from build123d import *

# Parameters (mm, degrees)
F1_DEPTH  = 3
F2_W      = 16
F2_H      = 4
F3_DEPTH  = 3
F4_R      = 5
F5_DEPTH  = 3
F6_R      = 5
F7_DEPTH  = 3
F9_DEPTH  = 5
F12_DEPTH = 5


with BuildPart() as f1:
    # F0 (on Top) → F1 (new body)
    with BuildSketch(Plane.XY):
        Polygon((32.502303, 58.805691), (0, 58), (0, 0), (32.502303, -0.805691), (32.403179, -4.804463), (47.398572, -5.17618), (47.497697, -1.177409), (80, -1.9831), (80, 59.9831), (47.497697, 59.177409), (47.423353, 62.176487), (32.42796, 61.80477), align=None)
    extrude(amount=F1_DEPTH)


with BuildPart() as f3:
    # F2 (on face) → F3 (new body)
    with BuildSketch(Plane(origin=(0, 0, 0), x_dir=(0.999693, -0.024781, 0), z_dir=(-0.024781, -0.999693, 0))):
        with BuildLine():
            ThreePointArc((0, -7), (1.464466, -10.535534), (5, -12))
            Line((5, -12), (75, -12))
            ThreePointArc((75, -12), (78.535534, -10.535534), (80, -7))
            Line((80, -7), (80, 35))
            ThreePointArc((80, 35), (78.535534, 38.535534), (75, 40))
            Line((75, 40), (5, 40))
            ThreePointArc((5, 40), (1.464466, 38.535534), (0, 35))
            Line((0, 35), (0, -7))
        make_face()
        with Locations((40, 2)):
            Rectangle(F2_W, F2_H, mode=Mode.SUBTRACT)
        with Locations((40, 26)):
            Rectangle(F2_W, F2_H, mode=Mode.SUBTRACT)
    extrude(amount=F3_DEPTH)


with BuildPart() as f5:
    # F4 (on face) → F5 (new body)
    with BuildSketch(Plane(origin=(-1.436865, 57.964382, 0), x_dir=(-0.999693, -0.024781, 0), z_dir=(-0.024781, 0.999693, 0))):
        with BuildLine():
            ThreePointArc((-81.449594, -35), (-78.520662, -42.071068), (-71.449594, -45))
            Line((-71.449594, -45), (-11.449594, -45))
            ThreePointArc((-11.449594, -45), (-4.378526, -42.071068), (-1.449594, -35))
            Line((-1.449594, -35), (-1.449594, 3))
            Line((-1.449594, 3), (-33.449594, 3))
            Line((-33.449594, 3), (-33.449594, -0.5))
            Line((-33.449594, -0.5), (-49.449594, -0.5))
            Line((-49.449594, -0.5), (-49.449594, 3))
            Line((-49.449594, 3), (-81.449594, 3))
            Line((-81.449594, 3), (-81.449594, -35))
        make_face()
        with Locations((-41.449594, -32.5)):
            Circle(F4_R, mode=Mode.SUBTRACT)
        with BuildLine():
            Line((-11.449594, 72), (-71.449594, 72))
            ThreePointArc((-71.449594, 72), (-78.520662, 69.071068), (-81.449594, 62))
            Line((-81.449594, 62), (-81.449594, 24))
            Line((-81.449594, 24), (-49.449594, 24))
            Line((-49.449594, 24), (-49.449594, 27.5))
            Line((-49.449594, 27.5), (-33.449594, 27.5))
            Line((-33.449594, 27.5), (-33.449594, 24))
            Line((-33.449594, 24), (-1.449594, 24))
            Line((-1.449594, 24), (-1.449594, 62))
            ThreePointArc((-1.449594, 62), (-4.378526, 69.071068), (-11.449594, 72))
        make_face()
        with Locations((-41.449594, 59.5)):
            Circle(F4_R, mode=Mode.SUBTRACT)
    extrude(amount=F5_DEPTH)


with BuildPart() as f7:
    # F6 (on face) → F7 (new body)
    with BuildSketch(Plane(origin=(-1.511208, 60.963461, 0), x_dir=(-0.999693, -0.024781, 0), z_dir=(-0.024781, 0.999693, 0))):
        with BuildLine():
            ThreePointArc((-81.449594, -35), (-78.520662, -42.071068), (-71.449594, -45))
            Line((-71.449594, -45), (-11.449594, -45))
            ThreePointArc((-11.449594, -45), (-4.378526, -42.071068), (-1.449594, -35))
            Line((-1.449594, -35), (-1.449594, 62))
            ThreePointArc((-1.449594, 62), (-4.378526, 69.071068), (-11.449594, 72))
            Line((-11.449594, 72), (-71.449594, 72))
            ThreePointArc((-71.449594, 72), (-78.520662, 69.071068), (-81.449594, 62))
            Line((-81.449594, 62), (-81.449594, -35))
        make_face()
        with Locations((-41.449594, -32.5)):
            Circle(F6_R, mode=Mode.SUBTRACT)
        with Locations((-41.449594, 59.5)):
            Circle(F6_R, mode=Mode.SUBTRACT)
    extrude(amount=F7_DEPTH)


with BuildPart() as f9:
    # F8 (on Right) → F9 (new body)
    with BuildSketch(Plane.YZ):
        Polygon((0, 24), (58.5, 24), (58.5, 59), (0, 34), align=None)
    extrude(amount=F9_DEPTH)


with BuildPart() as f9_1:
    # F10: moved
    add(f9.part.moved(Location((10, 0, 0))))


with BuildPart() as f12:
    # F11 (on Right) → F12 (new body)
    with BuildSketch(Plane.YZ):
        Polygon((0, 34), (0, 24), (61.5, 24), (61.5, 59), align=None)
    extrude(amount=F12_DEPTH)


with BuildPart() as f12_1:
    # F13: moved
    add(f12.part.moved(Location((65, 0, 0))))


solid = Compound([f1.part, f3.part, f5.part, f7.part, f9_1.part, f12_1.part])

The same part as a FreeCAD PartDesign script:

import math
import FreeCAD as App
import Part
import Sketcher
Q = App.Units.Quantity


def add_polygon(sketch, points):
    """Adds a closed chain of lines whose ends are joined by coincident constraints."""
    first, n = sketch.GeometryCount, len(points)
    for a, b in zip(points, points[1:] + points[:1]):
        sketch.addGeometry(Part.LineSegment(App.Vector(*a, 0), App.Vector(*b, 0)), False)
    for i in range(n):
        sketch.addConstraint(Sketcher.Constraint("Coincident", first + i, 2, first + (i + 1) % n, 1))

doc = App.newDocument("Part")
params = doc.addObject("Spreadsheet::Sheet", "Params")
for row, (alias, value) in enumerate([
    ("sketch1_height", "58 mm"),
    ("sketch1_length", "4 mm"),
    ("sketch1_length2", "14.999999 mm"),
    ("sketch1_length3", "2.999999 mm"),
    ("pad1_length", "3 mm"),
    ("sketch2_radius", "5 mm"),
    ("sketch2_width", "70 mm"),
    ("sketch2_width2", "16 mm"),
    ("sketch2_height", "42 mm"),
    ("sketch2_height2", "4 mm"),
    ("pad2_length", "3 mm"),
    ("sketch3_diameter", "10 mm"),
    ("sketch3_radius", "9.999999 mm"),
    ("sketch3_width", "60 mm"),
    ("sketch3_width2", "32 mm"),
    ("sketch3_height", "38 mm"),
    ("pad3_length", "3 mm"),
    ("sketch4_diameter", "10 mm"),
    ("sketch4_radius", "9.999999 mm"),
    ("sketch4_width", "60 mm"),
    ("sketch4_height", "97 mm"),
    ("pad4_length", "3 mm"),
    ("sketch5_height", "35 mm"),
    ("sketch5_height2", "10 mm"),
    ("sketch5_width", "58.5 mm"),
    ("pad5_length", "5 mm"),
    ("sketch6_height", "10 mm"),
    ("sketch6_height2", "35 mm"),
    ("sketch6_width", "61.5 mm"),
    ("pad6_length", "5 mm"),
], start=1):
    params.set(f"A{row}", alias)
    params.set(f"B{row}", "=" + value)
    params.setAlias(f"B{row}", alias)

body = doc.addObject("PartDesign::Body", "Body")

# Sketch on XY plane
sketch1 = doc.addObject("Sketcher::SketchObject", "Sketch")
body.addObject(sketch1)
sketch1.AttachmentSupport = (doc.XY_Plane, [""])
sketch1.MapMode = "FlatFace"
add_polygon(sketch1, [(32.5, 58.8), (0, 58), (0, 0), (32.5, -0.8), (32.4, -4.8), (47.4, -5.2), (47.5, -1.2), (80, -2), (80, 60), (47.5, 59.2), (47.4, 62.2), (32.4, 61.8)])  # lines 0-11
sketch1.addConstraint([
    Sketcher.Constraint("Vertical", 1),
    Sketcher.Constraint("Vertical", 7),
    Sketcher.Constraint("Coincident", 1, 2, -1, 1),
    Sketcher.Constraint("Perpendicular", 2, 3),
    Sketcher.Constraint("Perpendicular", 3, 4),
    Sketcher.Constraint("Perpendicular", 4, 5),
    Sketcher.Constraint("Perpendicular", 5, 6),
    Sketcher.Constraint("Parallel", 0, 8),
    Sketcher.Constraint("Perpendicular", 8, 9),
    Sketcher.Constraint("Perpendicular", 9, 10),
    Sketcher.Constraint("Perpendicular", 10, 11),
    Sketcher.Constraint("Vertical", 5, 2, 8, 2),
    Sketcher.Constraint("Vertical", 2, 2, 11, 2),
    Sketcher.Constraint("Equal", 0, 2),
    Sketcher.Constraint("Equal", 3, 5),
    Sketcher.Constraint("Equal", 2, 6),
    Sketcher.Constraint("Equal", 4, 10),
    Sketcher.Constraint("DistanceY", 1, 2, 1, 1, 58.0),
    Sketcher.Constraint("Distance", 3, 4.0),
    Sketcher.Constraint("Distance", 4, 14.999999),
    Sketcher.Constraint("Distance", 9, 2.999999),
    Sketcher.Constraint("DistanceX", -1, 1, 6, 2, 80.0),
    Sketcher.Constraint("Angle", 0, Q("-178.580001 deg")),
])
sketch1.setExpression("Constraints[29]", "Params.sketch1_height")
sketch1.setExpression("Constraints[30]", "Params.sketch1_length")
sketch1.setExpression("Constraints[31]", "Params.sketch1_length2")
sketch1.setExpression("Constraints[32]", "Params.sketch1_length3")
pad1 = doc.addObject("PartDesign::Pad", "Pad")
body.addObject(pad1)
pad1.Profile = sketch1
pad1.setExpression("Length", "Params.pad1_length")
body2 = doc.addObject("PartDesign::Body", "Body001")

# Sketch on an angled plane
sketch2 = doc.addObject("Sketcher::SketchObject", "Sketch001")
body2.addObject(sketch2)
sketch2.Placement = App.Placement(App.Vector(0, 0, 0), App.Rotation(App.Vector(0.999692904, -0.024780998, 0), App.Vector(0, 0, 1), App.Vector(-0.024780998, -0.999692904, 0), "ZXY"))
sketch2.addGeometry(Part.ArcOfCircle(Part.Circle(App.Vector(5, -7, 0), App.Vector(0, 0, 1), 5), math.radians(180), math.radians(270)), False)  # 0
sketch2.addGeometry(Part.LineSegment(App.Vector(5, -12, 0), App.Vector(75, -12, 0)), False)  # 1
sketch2.addGeometry(Part.ArcOfCircle(Part.Circle(App.Vector(75, -7, 0), App.Vector(0, 0, 1), 5), math.radians(-90), math.radians(0)), False)  # 2
sketch2.addGeometry(Part.LineSegment(App.Vector(80, -7, 0), App.Vector(80, 35, 0)), False)  # 3
sketch2.addGeometry(Part.ArcOfCircle(Part.Circle(App.Vector(75, 35, 0), App.Vector(0, 0, 1), 5), math.radians(0), math.radians(90)), False)  # 4
sketch2.addGeometry(Part.LineSegment(App.Vector(75, 40, 0), App.Vector(5, 40, 0)), False)  # 5
sketch2.addGeometry(Part.ArcOfCircle(Part.Circle(App.Vector(5, 35, 0), App.Vector(0, 0, 1), 5), math.radians(90), math.radians(180)), False)  # 6
sketch2.addGeometry(Part.LineSegment(App.Vector(0, 35, 0), App.Vector(0, -7, 0)), False)  # 7
add_polygon(sketch2, [(48, 0), (32, 0), (32, 4), (48, 4)])  # lines 8-11
add_polygon(sketch2, [(48, 24), (32, 24), (32, 28), (48, 28)])  # lines 12-15
sketch2.addConstraint([
    Sketcher.Constraint("Tangent", 0, 2, 1, 1),
    Sketcher.Constraint("Tangent", 1, 2, 2, 1),
    Sketcher.Constraint("Tangent", 2, 2, 3, 1),
    Sketcher.Constraint("Tangent", 3, 2, 4, 1),
    Sketcher.Constraint("Tangent", 4, 2, 5, 1),
    Sketcher.Constraint("Tangent", 5, 2, 6, 1),
    Sketcher.Constraint("Tangent", 6, 2, 7, 1),
    Sketcher.Constraint("Tangent", 7, 2, 0, 1),
    Sketcher.Constraint("Horizontal", 1),
    Sketcher.Constraint("Vertical", 3),
    Sketcher.Constraint("Horizontal", 5),
    Sketcher.Constraint("Vertical", 7),
    Sketcher.Constraint("Horizontal", 8),
    Sketcher.Constraint("Vertical", 9),
    Sketcher.Constraint("Horizontal", 10),
    Sketcher.Constraint("Vertical", 11),
    Sketcher.Constraint("Horizontal", 12),
    Sketcher.Constraint("Vertical", 13),
    Sketcher.Constraint("Horizontal", 14),
    Sketcher.Constraint("Vertical", 15),
    Sketcher.Constraint("Equal", 0, 2),
    Sketcher.Constraint("Equal", 2, 4),
    Sketcher.Constraint("Equal", 4, 6),
    Sketcher.Constraint("PointOnObject", 6, 2, -2),
    Sketcher.Constraint("PointOnObject", 8, 2, -1),
    Sketcher.Constraint("Vertical", 9, 2, 12, 2),
    Sketcher.Constraint("Vertical", 11, 2, 14, 2),
    Sketcher.Constraint("Equal", 11, 13),
    Sketcher.Constraint("Radius", 0, 5.0),
    Sketcher.Constraint("DistanceX", 1, 1, 1, 2, 70.0),
    Sketcher.Constraint("DistanceX", 8, 2, 8, 1, 16.0),
    Sketcher.Constraint("DistanceY", 3, 1, 3, 2, 42.0),
    Sketcher.Constraint("DistanceY", 9, 1, 9, 2, 4.0),
    Sketcher.Constraint("DistanceY", 0, 3, -1, 1, 7.0),
    Sketcher.Constraint("DistanceX", -1, 1, 8, 2, 32.0),
    Sketcher.Constraint("DistanceY", -1, 1, 12, 2, 24.0),
])
sketch2.setExpression("Constraints[36]", "Params.sketch2_radius")
sketch2.setExpression("Constraints[37]", "Params.sketch2_width")
sketch2.setExpression("Constraints[38]", "Params.sketch2_width2")
sketch2.setExpression("Constraints[39]", "Params.sketch2_height")
sketch2.setExpression("Constraints[40]", "Params.sketch2_height2")
pad2 = doc.addObject("PartDesign::Pad", "Pad001")
body2.addObject(pad2)
pad2.Profile = sketch2
pad2.setExpression("Length", "Params.pad2_length")
body3 = doc.addObject("PartDesign::Body", "Body002")
body3.AllowCompound = True

# Sketch on an angled plane
sketch3 = doc.addObject("Sketcher::SketchObject", "Sketch002")
body3.addObject(sketch3)
sketch3.Placement = App.Placement(App.Vector(-1.436865, 57.964382, 0), App.Rotation(App.Vector(-0.999692904, -0.024780998, 0), App.Vector(0, 0, 1), App.Vector(-0.024780998, 0.999692904, 0), "ZXY"))
sketch3.addGeometry([
    Part.ArcOfCircle(Part.Circle(App.Vector(-71.4, -35, 0), App.Vector(0, 0, 1), 10), math.radians(180), math.radians(270)),  # 0
    Part.LineSegment(App.Vector(-71.4, -45, 0), App.Vector(-11.4, -45, 0)),  # 1
    Part.ArcOfCircle(Part.Circle(App.Vector(-11.4, -35, 0), App.Vector(0, 0, 1), 10), math.radians(-90), math.radians(0)),  # 2
    Part.LineSegment(App.Vector(-1.4, -35, 0), App.Vector(-1.4, 3, 0)),  # 3
    Part.LineSegment(App.Vector(-1.4, 3, 0), App.Vector(-33.4, 3, 0)),  # 4
    Part.LineSegment(App.Vector(-33.4, 3, 0), App.Vector(-33.4, -0.5, 0)),  # 5
    Part.LineSegment(App.Vector(-33.4, -0.5, 0), App.Vector(-49.4, -0.5, 0)),  # 6
    Part.LineSegment(App.Vector(-49.4, -0.5, 0), App.Vector(-49.4, 3, 0)),  # 7
    Part.LineSegment(App.Vector(-49.4, 3, 0), App.Vector(-81.4, 3, 0)),  # 8
    Part.LineSegment(App.Vector(-81.4, 3, 0), App.Vector(-81.4, -35, 0)),  # 9
    Part.Circle(App.Vector(-41.4, -32.5, 0), App.Vector(0, 0, 1), 5),  # 10
    Part.LineSegment(App.Vector(-11.4, 72, 0), App.Vector(-71.4, 72, 0)),  # 11
    Part.ArcOfCircle(Part.Circle(App.Vector(-71.4, 62, 0), App.Vector(0, 0, 1), 10), math.radians(90), math.radians(180)),  # 12
    Part.LineSegment(App.Vector(-81.4, 62, 0), App.Vector(-81.4, 24, 0)),  # 13
    Part.LineSegment(App.Vector(-81.4, 24, 0), App.Vector(-49.4, 24, 0)),  # 14
    Part.LineSegment(App.Vector(-49.4, 24, 0), App.Vector(-49.4, 27.5, 0)),  # 15
    Part.LineSegment(App.Vector(-49.4, 27.5, 0), App.Vector(-33.4, 27.5, 0)),  # 16
    Part.LineSegment(App.Vector(-33.4, 27.5, 0), App.Vector(-33.4, 24, 0)),  # 17
    Part.LineSegment(App.Vector(-33.4, 24, 0), App.Vector(-1.4, 24, 0)),  # 18
    Part.LineSegment(App.Vector(-1.4, 24, 0), App.Vector(-1.4, 62, 0)),  # 19
    Part.ArcOfCircle(Part.Circle(App.Vector(-11.4, 62, 0), App.Vector(0, 0, 1), 10), math.radians(0), math.radians(90)),  # 20
    Part.Circle(App.Vector(-41.4, 59.5, 0), App.Vector(0, 0, 1), 5),  # 21
], False)
sketch3.addConstraint([
    Sketcher.Constraint("Tangent", 0, 2, 1, 1),
    Sketcher.Constraint("Tangent", 1, 2, 2, 1),
    Sketcher.Constraint("Tangent", 2, 2, 3, 1),
    Sketcher.Constraint("Coincident", 3, 2, 4, 1),
    Sketcher.Constraint("Coincident", 4, 2, 5, 1),
    Sketcher.Constraint("Coincident", 5, 2, 6, 1),
    Sketcher.Constraint("Coincident", 6, 2, 7, 1),
    Sketcher.Constraint("Coincident", 7, 2, 8, 1),
    Sketcher.Constraint("Coincident", 8, 2, 9, 1),
    Sketcher.Constraint("Tangent", 9, 2, 0, 1),
    Sketcher.Constraint("Tangent", 11, 2, 12, 1),
    Sketcher.Constraint("Tangent", 12, 2, 13, 1),
    Sketcher.Constraint("Coincident", 13, 2, 14, 1),
    Sketcher.Constraint("Coincident", 14, 2, 15, 1),
    Sketcher.Constraint("Coincident", 15, 2, 16, 1),
    Sketcher.Constraint("Coincident", 16, 2, 17, 1),
    Sketcher.Constraint("Coincident", 17, 2, 18, 1),
    Sketcher.Constraint("Coincident", 18, 2, 19, 1),
    Sketcher.Constraint("Tangent", 19, 2, 20, 1),
    Sketcher.Constraint("Tangent", 20, 2, 11, 1),
    Sketcher.Constraint("Horizontal", 1),
    Sketcher.Constraint("Vertical", 3),
    Sketcher.Constraint("Horizontal", 4),
    Sketcher.Constraint("Vertical", 5),
    Sketcher.Constraint("Horizontal", 6),
    Sketcher.Constraint("Vertical", 7),
    Sketcher.Constraint("Horizontal", 8),
    Sketcher.Constraint("Vertical", 9),
    Sketcher.Constraint("Horizontal", 11),
    Sketcher.Constraint("Vertical", 13),
    Sketcher.Constraint("Horizontal", 14),
    Sketcher.Constraint("Vertical", 15),
    Sketcher.Constraint("Horizontal", 16),
    Sketcher.Constraint("Vertical", 17),
    Sketcher.Constraint("Horizontal", 18),
    Sketcher.Constraint("Vertical", 19),
    Sketcher.Constraint("Equal", 0, 2),
    Sketcher.Constraint("Equal", 2, 12),
    Sketcher.Constraint("Equal", 12, 20),
    Sketcher.Constraint("Equal", 10, 21),
    Sketcher.Constraint("Horizontal", 4, 2, 7, 2),
    Sketcher.Constraint("Horizontal", 14, 2, 17, 2),
    Sketcher.Constraint("Vertical", 0, 3, 12, 3),
    Sketcher.Constraint("Vertical", 2, 3, 20, 3),
    Sketcher.Constraint("Vertical", 10, 3, 21, 3),
    Sketcher.Constraint("Vertical", 7, 2, 14, 2),
    Sketcher.Constraint("Vertical", 5, 2, 16, 2),
    Sketcher.Constraint("Equal", 4, 8),
    Sketcher.Constraint("Equal", 9, 13),
    Sketcher.Constraint("Equal", 7, 15),
    Sketcher.Constraint("Diameter", 10, 10.0),
    Sketcher.Constraint("Radius", 0, 9.999999),
    Sketcher.Constraint("DistanceX", 1, 1, 1, 2, 60.0),
    Sketcher.Constraint("DistanceX", 4, 2, 4, 1, 32.0),
    Sketcher.Constraint("DistanceY", 3, 1, 3, 2, 38.0),
    Sketcher.Constraint("DistanceY", 5, 2, 5, 1, 3.5),
    Sketcher.Constraint("DistanceY", 0, 3, -1, 1, 35.000001),
    Sketcher.Constraint("DistanceY", -1, 1, 12, 3, 62.000001),
    Sketcher.Constraint("DistanceX", 0, 3, 10, 3, 30.000001),
    Sketcher.Constraint("DistanceY", 10, 3, 21, 3, 92.0),
    Sketcher.Constraint("DistanceY", 10, 3, 5, 2, 32.0),
    Sketcher.Constraint("DistanceX", 0, 3, -1, 1, 71.449595),
])
sketch3.setExpression("Constraints[50]", "Params.sketch3_diameter")
sketch3.setExpression("Constraints[51]", "Params.sketch3_radius")
sketch3.setExpression("Constraints[52]", "Params.sketch3_width")
sketch3.setExpression("Constraints[53]", "Params.sketch3_width2")
sketch3.setExpression("Constraints[54]", "Params.sketch3_height")
pad3 = doc.addObject("PartDesign::Pad", "Pad002")
body3.addObject(pad3)
pad3.Profile = sketch3
pad3.setExpression("Length", "Params.pad3_length")
body4 = doc.addObject("PartDesign::Body", "Body003")

# Sketch on an angled plane
sketch4 = doc.addObject("Sketcher::SketchObject", "Sketch003")
body4.addObject(sketch4)
sketch4.Placement = App.Placement(App.Vector(-1.511208, 60.963461, 0), App.Rotation(App.Vector(-0.999692904, -0.024780998, 0), App.Vector(0, 0, 1), App.Vector(-0.024780998, 0.999692904, 0), "ZXY"))
sketch4.addGeometry([
    Part.ArcOfCircle(Part.Circle(App.Vector(-71, -35, 0), App.Vector(0, 0, 1), 10), math.radians(180), math.radians(270)),  # 0
    Part.LineSegment(App.Vector(-71, -45, 0), App.Vector(-11, -45, 0)),  # 1
    Part.ArcOfCircle(Part.Circle(App.Vector(-11, -35, 0), App.Vector(0, 0, 1), 10), math.radians(-90), math.radians(0)),  # 2
    Part.LineSegment(App.Vector(-1, -35, 0), App.Vector(-1, 62, 0)),  # 3
    Part.ArcOfCircle(Part.Circle(App.Vector(-11, 62, 0), App.Vector(0, 0, 1), 10), math.radians(0), math.radians(90)),  # 4
    Part.LineSegment(App.Vector(-11, 72, 0), App.Vector(-71, 72, 0)),  # 5
    Part.ArcOfCircle(Part.Circle(App.Vector(-71, 62, 0), App.Vector(0, 0, 1), 10), math.radians(90), math.radians(180)),  # 6
    Part.LineSegment(App.Vector(-81, 62, 0), App.Vector(-81, -35, 0)),  # 7
    Part.Circle(App.Vector(-41, -33, 0), App.Vector(0, 0, 1), 5),  # 8
    Part.Circle(App.Vector(-41, 60, 0), App.Vector(0, 0, 1), 5),  # 9
], False)
sketch4.addConstraint([
    Sketcher.Constraint("Tangent", 0, 2, 1, 1),
    Sketcher.Constraint("Tangent", 1, 2, 2, 1),
    Sketcher.Constraint("Tangent", 2, 2, 3, 1),
    Sketcher.Constraint("Tangent", 3, 2, 4, 1),
    Sketcher.Constraint("Tangent", 4, 2, 5, 1),
    Sketcher.Constraint("Tangent", 5, 2, 6, 1),
    Sketcher.Constraint("Tangent", 6, 2, 7, 1),
    Sketcher.Constraint("Tangent", 7, 2, 0, 1),
    Sketcher.Constraint("Horizontal", 1),
    Sketcher.Constraint("Vertical", 3),
    Sketcher.Constraint("Horizontal", 5),
    Sketcher.Constraint("Vertical", 7),
    Sketcher.Constraint("Equal", 0, 2),
    Sketcher.Constraint("Equal", 2, 4),
    Sketcher.Constraint("Equal", 4, 6),
    Sketcher.Constraint("Equal", 8, 9),
    Sketcher.Constraint("Vertical", 8, 3, 9, 3),
    Sketcher.Constraint("Diameter", 8, 10.0),
    Sketcher.Constraint("Radius", 0, 9.999999),
    Sketcher.Constraint("DistanceX", 1, 1, 1, 2, 60.0),
    Sketcher.Constraint("DistanceY", 3, 1, 3, 2, 97.0),
    Sketcher.Constraint("DistanceY", 0, 3, -1, 1, 35.000001),
    Sketcher.Constraint("DistanceX", 0, 3, 8, 3, 30.000001),
    Sketcher.Constraint("DistanceY", 8, 3, 9, 3, 92.0),
    Sketcher.Constraint("DistanceY", 8, 3, -1, 1, 32.5),
    Sketcher.Constraint("DistanceX", 0, 3, -1, 1, 71.449595),
])
sketch4.setExpression("Constraints[17]", "Params.sketch4_diameter")
sketch4.setExpression("Constraints[18]", "Params.sketch4_radius")
sketch4.setExpression("Constraints[19]", "Params.sketch4_width")
sketch4.setExpression("Constraints[20]", "Params.sketch4_height")
pad4 = doc.addObject("PartDesign::Pad", "Pad003")
body4.addObject(pad4)
pad4.Profile = sketch4
pad4.setExpression("Length", "Params.pad4_length")
body5 = doc.addObject("PartDesign::Body", "Body004")

# Sketch on YZ plane
sketch5 = doc.addObject("Sketcher::SketchObject", "Sketch004")
body5.addObject(sketch5)
sketch5.AttachmentSupport = (doc.getObject("YZ_Plane004"), [""])
sketch5.MapMode = "FlatFace"
add_polygon(sketch5, [(0, 24), (58, 24), (58, 59), (0, 34)])  # lines 0-3
sketch5.addConstraint([
    Sketcher.Constraint("Horizontal", 0),
    Sketcher.Constraint("Vertical", 1),
    Sketcher.Constraint("Vertical", 3),
    Sketcher.Constraint("PointOnObject", 2, 2, -2),
    Sketcher.Constraint("DistanceY", 1, 1, 1, 2, 35.0),
    Sketcher.Constraint("DistanceY", 3, 2, 3, 1, 10.0),
    Sketcher.Constraint("DistanceX", 0, 1, 0, 2, 58.5),
    Sketcher.Constraint("DistanceY", -1, 1, 0, 2, 24.0),
])
sketch5.setExpression("Constraints[8]", "Params.sketch5_height")
sketch5.setExpression("Constraints[9]", "Params.sketch5_height2")
sketch5.setExpression("Constraints[10]", "Params.sketch5_width")
pad5 = doc.addObject("PartDesign::Pad", "Pad004")
body5.addObject(pad5)
pad5.Profile = sketch5
pad5.setExpression("Length", "Params.pad5_length")
body6 = doc.addObject("PartDesign::Body", "Body005")
doc.recompute()

body5.Placement = App.Placement(App.Vector(10, 0, 0), App.Rotation(App.Vector(0, 0, 1), 0))
boolean = doc.addObject("PartDesign::Boolean", "Boolean")
body6.addObject(boolean)
boolean.Type = "Fuse"
boolean.addObjects([body5])
body7 = doc.addObject("PartDesign::Body", "Body006")

# Sketch on YZ plane
sketch6 = doc.addObject("Sketcher::SketchObject", "Sketch005")
body7.addObject(sketch6)
sketch6.AttachmentSupport = (doc.getObject("YZ_Plane006"), [""])
sketch6.MapMode = "FlatFace"
add_polygon(sketch6, [(0, 34), (0, 24), (62, 24), (62, 59)])  # lines 0-3
sketch6.addConstraint([
    Sketcher.Constraint("Vertical", 0),
    Sketcher.Constraint("Horizontal", 1),
    Sketcher.Constraint("Vertical", 2),
    Sketcher.Constraint("PointOnObject", 0, 2, -2),
    Sketcher.Constraint("DistanceY", 0, 2, 0, 1, 10.0),
    Sketcher.Constraint("DistanceY", 2, 1, 2, 2, 35.0),
    Sketcher.Constraint("DistanceX", 1, 1, 1, 2, 61.5),
    Sketcher.Constraint("DistanceY", -1, 1, 0, 2, 24.0),
])
sketch6.setExpression("Constraints[8]", "Params.sketch6_height")
sketch6.setExpression("Constraints[9]", "Params.sketch6_height2")
sketch6.setExpression("Constraints[10]", "Params.sketch6_width")
pad6 = doc.addObject("PartDesign::Pad", "Pad005")
body7.addObject(pad6)
pad6.Profile = sketch6
pad6.setExpression("Length", "Params.pad6_length")
body8 = doc.addObject("PartDesign::Body", "Body007")
doc.recompute()

body7.Placement = App.Placement(App.Vector(65, 0, 0), App.Rotation(App.Vector(0, 0, 1), 0))
boolean2 = doc.addObject("PartDesign::Boolean", "Boolean001")
body8.addObject(boolean2)
boolean2.Type = "Fuse"
boolean2.addObjects([body7])

doc.recompute()
